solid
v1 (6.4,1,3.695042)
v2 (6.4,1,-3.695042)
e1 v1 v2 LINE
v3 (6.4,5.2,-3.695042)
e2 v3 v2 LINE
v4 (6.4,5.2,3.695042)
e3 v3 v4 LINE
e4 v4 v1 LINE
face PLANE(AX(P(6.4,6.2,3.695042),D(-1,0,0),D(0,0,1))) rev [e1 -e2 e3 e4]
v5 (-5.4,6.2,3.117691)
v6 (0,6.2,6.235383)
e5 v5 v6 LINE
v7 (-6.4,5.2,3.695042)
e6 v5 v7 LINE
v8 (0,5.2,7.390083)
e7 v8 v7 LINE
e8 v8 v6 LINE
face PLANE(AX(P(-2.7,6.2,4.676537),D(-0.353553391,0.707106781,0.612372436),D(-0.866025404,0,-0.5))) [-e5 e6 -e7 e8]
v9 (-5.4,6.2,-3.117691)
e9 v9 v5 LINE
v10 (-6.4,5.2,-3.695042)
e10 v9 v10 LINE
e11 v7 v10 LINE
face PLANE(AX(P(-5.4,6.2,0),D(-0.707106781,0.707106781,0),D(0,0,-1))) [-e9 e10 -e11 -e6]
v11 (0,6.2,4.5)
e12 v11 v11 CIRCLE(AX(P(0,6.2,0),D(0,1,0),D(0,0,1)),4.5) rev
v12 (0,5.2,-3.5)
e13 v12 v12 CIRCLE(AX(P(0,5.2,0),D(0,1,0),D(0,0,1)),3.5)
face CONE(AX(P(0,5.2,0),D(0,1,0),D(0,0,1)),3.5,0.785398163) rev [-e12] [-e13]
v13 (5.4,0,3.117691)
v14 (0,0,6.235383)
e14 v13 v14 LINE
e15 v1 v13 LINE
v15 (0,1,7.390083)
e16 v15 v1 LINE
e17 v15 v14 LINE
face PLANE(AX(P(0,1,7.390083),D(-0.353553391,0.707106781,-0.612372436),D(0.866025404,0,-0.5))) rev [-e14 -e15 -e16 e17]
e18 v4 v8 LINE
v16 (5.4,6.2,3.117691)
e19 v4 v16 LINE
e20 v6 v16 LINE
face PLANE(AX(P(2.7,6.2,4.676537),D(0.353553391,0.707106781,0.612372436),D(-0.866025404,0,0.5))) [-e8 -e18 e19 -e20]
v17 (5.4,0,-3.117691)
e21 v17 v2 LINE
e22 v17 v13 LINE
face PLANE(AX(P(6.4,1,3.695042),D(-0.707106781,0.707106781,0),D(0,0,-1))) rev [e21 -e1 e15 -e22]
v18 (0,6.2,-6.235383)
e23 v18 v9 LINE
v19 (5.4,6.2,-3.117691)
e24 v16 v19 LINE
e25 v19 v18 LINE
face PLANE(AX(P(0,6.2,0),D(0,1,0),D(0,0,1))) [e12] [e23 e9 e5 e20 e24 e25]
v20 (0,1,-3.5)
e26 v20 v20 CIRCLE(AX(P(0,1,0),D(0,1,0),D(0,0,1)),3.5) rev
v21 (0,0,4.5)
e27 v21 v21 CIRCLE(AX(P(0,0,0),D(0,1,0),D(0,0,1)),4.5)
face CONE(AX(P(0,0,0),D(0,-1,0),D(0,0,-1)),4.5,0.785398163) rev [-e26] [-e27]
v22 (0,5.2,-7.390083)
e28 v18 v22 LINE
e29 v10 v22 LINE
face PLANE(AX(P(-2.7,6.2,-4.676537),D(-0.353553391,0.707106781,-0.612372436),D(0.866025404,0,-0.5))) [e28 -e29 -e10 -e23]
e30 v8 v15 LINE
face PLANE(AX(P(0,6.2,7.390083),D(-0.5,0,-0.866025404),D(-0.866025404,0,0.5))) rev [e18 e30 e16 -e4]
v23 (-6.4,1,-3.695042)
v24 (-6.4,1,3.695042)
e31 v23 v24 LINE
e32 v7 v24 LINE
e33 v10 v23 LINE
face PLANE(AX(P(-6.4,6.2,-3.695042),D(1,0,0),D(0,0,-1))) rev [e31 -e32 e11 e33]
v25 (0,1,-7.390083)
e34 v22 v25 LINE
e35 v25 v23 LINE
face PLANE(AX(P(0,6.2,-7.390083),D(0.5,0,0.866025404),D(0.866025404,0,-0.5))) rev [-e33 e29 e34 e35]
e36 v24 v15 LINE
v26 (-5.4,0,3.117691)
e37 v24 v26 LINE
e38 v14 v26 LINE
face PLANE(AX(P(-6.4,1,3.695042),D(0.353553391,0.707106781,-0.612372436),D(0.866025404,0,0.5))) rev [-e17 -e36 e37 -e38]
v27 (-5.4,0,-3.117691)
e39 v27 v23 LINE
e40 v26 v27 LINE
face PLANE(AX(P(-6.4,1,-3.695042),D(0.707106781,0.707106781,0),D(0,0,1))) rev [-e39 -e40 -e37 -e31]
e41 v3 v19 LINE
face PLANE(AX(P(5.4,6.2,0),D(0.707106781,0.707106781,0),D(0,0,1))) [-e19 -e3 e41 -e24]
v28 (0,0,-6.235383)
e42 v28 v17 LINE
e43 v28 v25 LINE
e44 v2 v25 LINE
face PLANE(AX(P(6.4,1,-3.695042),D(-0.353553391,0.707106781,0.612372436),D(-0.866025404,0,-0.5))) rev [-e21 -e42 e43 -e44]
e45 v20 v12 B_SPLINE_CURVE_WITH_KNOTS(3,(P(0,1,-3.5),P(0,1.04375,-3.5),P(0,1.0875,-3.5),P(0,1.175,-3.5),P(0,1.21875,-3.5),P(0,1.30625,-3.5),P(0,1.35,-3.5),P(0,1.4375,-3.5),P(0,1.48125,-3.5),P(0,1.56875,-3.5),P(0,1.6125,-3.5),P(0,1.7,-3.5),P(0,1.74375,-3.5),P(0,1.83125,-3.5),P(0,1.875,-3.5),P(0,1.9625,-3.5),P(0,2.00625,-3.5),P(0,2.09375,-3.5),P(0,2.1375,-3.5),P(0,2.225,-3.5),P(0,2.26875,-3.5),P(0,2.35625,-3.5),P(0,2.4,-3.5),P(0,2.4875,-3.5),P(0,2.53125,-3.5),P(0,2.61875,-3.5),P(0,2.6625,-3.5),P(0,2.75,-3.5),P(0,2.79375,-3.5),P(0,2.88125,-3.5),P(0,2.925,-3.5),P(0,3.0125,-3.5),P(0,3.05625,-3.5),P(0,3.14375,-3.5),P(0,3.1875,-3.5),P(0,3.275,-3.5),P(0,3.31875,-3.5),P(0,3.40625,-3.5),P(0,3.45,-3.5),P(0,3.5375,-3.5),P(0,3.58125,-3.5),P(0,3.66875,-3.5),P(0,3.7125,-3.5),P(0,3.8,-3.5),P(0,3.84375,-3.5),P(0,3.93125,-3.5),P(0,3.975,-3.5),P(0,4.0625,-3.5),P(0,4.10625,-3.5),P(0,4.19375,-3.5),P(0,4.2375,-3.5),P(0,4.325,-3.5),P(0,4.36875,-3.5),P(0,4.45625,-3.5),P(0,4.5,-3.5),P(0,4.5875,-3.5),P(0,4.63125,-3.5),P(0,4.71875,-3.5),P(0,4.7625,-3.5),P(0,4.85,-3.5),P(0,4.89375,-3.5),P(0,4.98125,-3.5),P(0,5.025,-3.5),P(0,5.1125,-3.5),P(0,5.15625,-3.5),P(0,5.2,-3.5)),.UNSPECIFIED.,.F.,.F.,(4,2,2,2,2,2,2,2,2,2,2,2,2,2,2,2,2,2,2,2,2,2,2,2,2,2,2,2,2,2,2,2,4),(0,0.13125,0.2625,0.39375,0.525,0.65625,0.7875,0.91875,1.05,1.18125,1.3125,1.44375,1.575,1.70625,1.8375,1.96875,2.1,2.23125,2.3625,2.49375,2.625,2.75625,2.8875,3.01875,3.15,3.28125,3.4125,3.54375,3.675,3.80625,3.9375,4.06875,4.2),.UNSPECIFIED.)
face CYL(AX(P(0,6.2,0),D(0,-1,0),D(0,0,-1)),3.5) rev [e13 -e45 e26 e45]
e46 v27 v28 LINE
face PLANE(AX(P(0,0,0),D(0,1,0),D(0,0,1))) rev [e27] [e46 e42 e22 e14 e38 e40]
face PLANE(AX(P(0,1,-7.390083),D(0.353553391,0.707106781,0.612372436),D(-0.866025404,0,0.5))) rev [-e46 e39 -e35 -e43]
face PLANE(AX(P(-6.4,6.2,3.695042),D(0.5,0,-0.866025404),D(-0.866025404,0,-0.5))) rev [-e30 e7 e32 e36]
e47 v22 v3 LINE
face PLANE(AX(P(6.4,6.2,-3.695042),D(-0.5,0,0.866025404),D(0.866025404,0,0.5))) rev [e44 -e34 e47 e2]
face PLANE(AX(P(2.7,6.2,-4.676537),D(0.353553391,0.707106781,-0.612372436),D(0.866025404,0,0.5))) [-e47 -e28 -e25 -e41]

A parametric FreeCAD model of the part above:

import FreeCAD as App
import Part
import Sketcher

V = App.Vector
Q = App.Units.Quantity


def edges_at(feature, points):
    """Names of the edges that pass closest to the given points."""
    edges = feature.Shape.Edges
    near = lambda p: min(range(len(edges)), key=lambda i: edges[i].distToShape(Part.Vertex(*p))[0])
    return sorted({f"Edge{near(p) + 1}" for p in points})


def add_polygon(sketch, points):
    """Adds a closed chain of lines whose ends are joined by coincident constraints."""
    first, n = sketch.GeometryCount, len(points)
    for a, b in zip(points, points[1:] + points[:1]):
        sketch.addGeometry(Part.LineSegment(App.Vector(*a, 0), App.Vector(*b, 0)), False)
    for i in range(n):
        sketch.addConstraint(Sketcher.Constraint("Coincident", first + i, 2, first + (i + 1) % n, 1))

doc = App.newDocument("Part")
body = doc.addObject("PartDesign::Body", "Body")

sketch1 = body.newObject("Sketcher::SketchObject", "Sketch")
sketch1.AttachmentSupport = (doc.getObject("XZ_Plane"), [""])
sketch1.MapMode = "FlatFace"
add_polygon(sketch1, [(6.4, 3.7), (6.4, -3.7), (0, -7.4), (-6.4, -3.7), (-6.4, 3.7), (0, 7.4)])
sketch1.addGeometry(Part.Circle(V(0, 0, 0), V(0, 0, 1), 3.5), False)
sketch1.addConstraint(Sketcher.Constraint("Vertical", 0))
sketch1.addConstraint(Sketcher.Constraint("Vertical", 3))
sketch1.addConstraint(Sketcher.Constraint("Coincident", 6, 3, -1, 1))
sketch1.addConstraint(Sketcher.Constraint("Symmetric", 0, 2, 3, 2, -1, 1))
sketch1.addConstraint(Sketcher.Constraint("Symmetric", 1, 2, 4, 2, -1, 1))
sketch1.addConstraint(Sketcher.Constraint("PointOnObject", 1, 2, -2))
sketch1.addConstraint(Sketcher.Constraint("Parallel", 2, 5))
sketch1.addConstraint(Sketcher.Constraint("Horizontal", 0, 2, 2, 2))
sketch1.addConstraint(Sketcher.Constraint("Diameter", 6, Q("7 mm")))
sketch1.addConstraint(Sketcher.Constraint("Angle", 1, Q("-150 deg")))
sketch1.addConstraint(Sketcher.Constraint("DistanceX", -1, 1, 0, 2, Q("6.4 mm")))
sketch1.addConstraint(Sketcher.Constraint("DistanceY", 0, 2, 0, 1, Q("7.390083 mm")))
pad1 = body.newObject("PartDesign::Pad", "Pad")
pad1.Profile = sketch1
pad1.Length = 6.2
pad1.Reversed = True
doc.recompute()

chamfer = body.newObject("PartDesign::Chamfer", "Chamfer")
chamfer.Base = (pad1, edges_at(pad1, [
    (3.2, 6.2, -5.543),
    (-3.2, 6.2, -5.543),
    (-6.4, 6.2, 0),
    (0, 0, 3.5),
    (0, 6.2, 3.5),
    (-3.2, 6.2, 5.543),
    (3.2, 6.2, 5.543),
    (-3.2, 0, 5.543),
    (-6.4, 0, 0),
    (-3.2, 0, -5.543),
    (6.4, 6.2, 0),
    (3.2, 0, -5.543),
    (6.4, 0, 0),
    (3.2, 0, 5.543),
]))
chamfer.Size = 1

doc.recompute()
